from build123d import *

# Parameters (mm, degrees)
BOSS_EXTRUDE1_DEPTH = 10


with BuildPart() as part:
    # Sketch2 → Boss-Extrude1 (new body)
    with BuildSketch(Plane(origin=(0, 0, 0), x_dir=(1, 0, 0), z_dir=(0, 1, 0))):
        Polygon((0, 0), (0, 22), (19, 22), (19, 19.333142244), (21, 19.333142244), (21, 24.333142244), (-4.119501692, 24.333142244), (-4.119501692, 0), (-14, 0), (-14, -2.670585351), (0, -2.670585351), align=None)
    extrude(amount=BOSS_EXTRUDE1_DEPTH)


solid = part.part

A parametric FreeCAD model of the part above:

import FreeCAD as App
import Part
import Sketcher

V = App.Vector


def add_polygon(sketch, points):
    """Adds a closed chain of lines whose ends are joined by coincident constraints."""
    first, n = sketch.GeometryCount, len(points)
    for a, b in zip(points, points[1:] + points[:1]):
        sketch.addGeometry(Part.LineSegment(App.Vector(*a, 0), App.Vector(*b, 0)), False)
    for i in range(n):
        sketch.addConstraint(Sketcher.Constraint("Coincident", first + i, 2, first + (i + 1) % n, 1))

doc = App.newDocument("Part")
body = doc.addObject("PartDesign::Body", "Body")

# Sketch on XZ plane
sketch1 = body.newObject("Sketcher::SketchObject", "Sketch")
sketch1.AttachmentSupport = (doc.getObject("XZ_Plane"), [""])
sketch1.MapMode = "FlatFace"
add_polygon(sketch1, [(0, -22), (19, -22), (19, -19.3), (21, -19.3), (21, -24.3), (-4.1, -24.3), (-4.1, 0), (-14, 0), (-14, 2.7), (0, 2.7)])  # lines 0-9
sketch1.addConstraint([
    Sketcher.Constraint("Horizontal", 0),
    Sketcher.Constraint("Vertical", 1),
    Sketcher.Constraint("Horizontal", 2),
    Sketcher.Constraint("Vertical", 3),
    Sketcher.Constraint("Horizontal", 4),
    Sketcher.Constraint("Vertical", 5),
    Sketcher.Constraint("Horizontal", 6),
    Sketcher.Constraint("Vertical", 7),
    Sketcher.Constraint("Horizontal", 8),
    Sketcher.Constraint("Vertical", 9),
    Sketcher.Constraint("PointOnObject", 5, 2, -1),
    Sketcher.Constraint("PointOnObject", 8, 2, -2),
    Sketcher.Constraint("DistanceX", 0, 1, 0, 2, 19.0),
    Sketcher.Constraint("DistanceX", 2, 1, 2, 2, 2.0),
    Sketcher.Constraint("DistanceX", 8, 1, 8, 2, 14.0),
    Sketcher.Constraint("DistanceY", 3, 2, 3, 1, 5.0),
    Sketcher.Constraint("DistanceY", 0, 2, -1, 1, 22.0),
    Sketcher.Constraint("DistanceX", 4, 2, 4, 1, 25.119502),
    Sketcher.Constraint("DistanceY", 1, 1, 1, 2, 2.666858),
    Sketcher.Constraint("DistanceY", 7, 1, 7, 2, 2.670585),
])
pad1 = body.newObject("PartDesign::Pad", "Pad")
pad1.Profile = sketch1
pad1.Length = 10
pad1.Reversed = True

doc.recompute()
